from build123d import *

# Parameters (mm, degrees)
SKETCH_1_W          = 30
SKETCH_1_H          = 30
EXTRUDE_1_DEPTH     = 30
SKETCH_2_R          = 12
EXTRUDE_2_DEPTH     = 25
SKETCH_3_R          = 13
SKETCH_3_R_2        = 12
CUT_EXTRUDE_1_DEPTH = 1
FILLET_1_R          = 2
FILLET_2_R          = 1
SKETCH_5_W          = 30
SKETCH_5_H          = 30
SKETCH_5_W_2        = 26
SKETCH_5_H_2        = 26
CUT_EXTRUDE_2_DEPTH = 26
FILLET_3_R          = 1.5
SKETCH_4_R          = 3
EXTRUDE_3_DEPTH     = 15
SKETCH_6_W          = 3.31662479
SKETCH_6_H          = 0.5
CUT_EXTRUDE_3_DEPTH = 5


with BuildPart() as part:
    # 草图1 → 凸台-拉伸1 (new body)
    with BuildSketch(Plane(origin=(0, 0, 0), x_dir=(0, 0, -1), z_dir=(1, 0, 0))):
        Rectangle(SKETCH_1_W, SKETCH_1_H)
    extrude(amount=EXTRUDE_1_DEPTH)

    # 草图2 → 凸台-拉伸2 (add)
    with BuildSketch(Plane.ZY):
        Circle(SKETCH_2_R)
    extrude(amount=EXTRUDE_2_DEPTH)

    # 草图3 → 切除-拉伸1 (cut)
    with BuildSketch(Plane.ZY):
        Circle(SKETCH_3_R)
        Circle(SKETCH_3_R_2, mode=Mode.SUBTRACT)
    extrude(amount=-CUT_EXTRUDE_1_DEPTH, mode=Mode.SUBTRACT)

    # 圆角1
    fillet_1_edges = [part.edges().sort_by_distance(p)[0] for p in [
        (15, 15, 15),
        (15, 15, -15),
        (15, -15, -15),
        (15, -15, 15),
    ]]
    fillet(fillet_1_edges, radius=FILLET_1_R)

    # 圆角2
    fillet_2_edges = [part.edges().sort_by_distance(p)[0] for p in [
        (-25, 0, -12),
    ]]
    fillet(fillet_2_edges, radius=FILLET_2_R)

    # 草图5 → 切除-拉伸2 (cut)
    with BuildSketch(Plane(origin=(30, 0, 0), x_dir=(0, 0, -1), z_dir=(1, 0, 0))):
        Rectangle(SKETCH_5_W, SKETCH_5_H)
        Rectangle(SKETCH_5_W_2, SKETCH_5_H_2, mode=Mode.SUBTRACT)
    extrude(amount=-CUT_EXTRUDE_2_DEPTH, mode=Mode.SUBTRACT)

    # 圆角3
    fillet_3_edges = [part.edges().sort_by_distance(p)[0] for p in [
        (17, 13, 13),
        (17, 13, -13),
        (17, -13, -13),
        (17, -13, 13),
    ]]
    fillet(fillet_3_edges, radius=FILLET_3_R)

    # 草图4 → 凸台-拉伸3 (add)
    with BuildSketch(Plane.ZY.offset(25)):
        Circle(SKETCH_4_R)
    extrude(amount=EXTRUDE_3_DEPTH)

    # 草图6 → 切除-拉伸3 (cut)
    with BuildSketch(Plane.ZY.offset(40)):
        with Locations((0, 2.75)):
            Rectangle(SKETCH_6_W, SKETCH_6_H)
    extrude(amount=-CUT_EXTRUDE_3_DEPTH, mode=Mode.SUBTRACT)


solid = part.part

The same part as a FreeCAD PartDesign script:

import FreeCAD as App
import Part
import Sketcher
Q = App.Units.Quantity


def edges_at(feature, points):
    """Names of the edges that pass closest to the given points."""
    edges = feature.Shape.Edges
    near = lambda p: min(range(len(edges)), key=lambda i: edges[i].distToShape(Part.Vertex(*p))[0])
    return sorted({f"Edge{near(p) + 1}" for p in points})


def add_polygon(sketch, points):
    """Adds a closed chain of lines whose ends are joined by coincident constraints."""
    first, n = sketch.GeometryCount, len(points)
    for a, b in zip(points, points[1:] + points[:1]):
        sketch.addGeometry(Part.LineSegment(App.Vector(*a, 0), App.Vector(*b, 0)), False)
    for i in range(n):
        sketch.addConstraint(Sketcher.Constraint("Coincident", first + i, 2, first + (i + 1) % n, 1))

doc = App.newDocument("Part")
body = doc.addObject("PartDesign::Body", "Body")

# Sketch on YZ plane
sketch1 = doc.addObject("Sketcher::SketchObject", "Sketch")
body.addObject(sketch1)
sketch1.AttachmentSupport = (doc.YZ_Plane, [""])
sketch1.MapMode = "FlatFace"
add_polygon(sketch1, [(15, 15), (-15, 15), (-15, -15), (15, -15)])  # lines 0-3
sketch1.addConstraint([
    Sketcher.Constraint("Horizontal", 0),
    Sketcher.Constraint("Vertical", 1),
    Sketcher.Constraint("Horizontal", 2),
    Sketcher.Constraint("Vertical", 3),
    Sketcher.Constraint("Symmetric", 0, 2, 2, 2, -1, 1),
    Sketcher.Constraint("Equal", 2, 1),
    Sketcher.Constraint("DistanceX", 0, 2, 0, 1, Q("30 mm")),
])
pad1 = doc.addObject("PartDesign::Pad", "Pad")
body.addObject(pad1)
pad1.Profile = sketch1
pad1.Length = 30

# Sketch on YZ plane
sketch2 = doc.addObject("Sketcher::SketchObject", "Sketch001")
body.addObject(sketch2)
sketch2.AttachmentSupport = (doc.YZ_Plane, [""])
sketch2.MapMode = "FlatFace"
sketch2.addGeometry(Part.Circle(App.Vector(0, 0, 0), App.Vector(0, 0, 1), 12), False)
sketch2.addConstraint([
    Sketcher.Constraint("Coincident", 0, 3, -1, 1),
    Sketcher.Constraint("Diameter", 0, Q("24 mm")),
])
pad2 = doc.addObject("PartDesign::Pad", "Pad001")
body.addObject(pad2)
pad2.Profile = sketch2
pad2.Length = 25
pad2.Reversed = True

# Sketch on YZ plane
sketch3 = doc.addObject("Sketcher::SketchObject", "Sketch002")
body.addObject(sketch3)
sketch3.AttachmentSupport = (doc.YZ_Plane, [""])
sketch3.MapMode = "FlatFace"
sketch3.addGeometry([
    Part.Circle(App.Vector(0, 0, 0), App.Vector(0, 0, 1), 13),
    Part.Circle(App.Vector(0, 0, 0), App.Vector(0, 0, 1), 12),
], False)
sketch3.addConstraint([
    Sketcher.Constraint("Coincident", 0, 3, -1, 1),
    Sketcher.Constraint("Coincident", 1, 3, -1, 1),
    Sketcher.Constraint("Diameter", 0, Q("26 mm")),
    Sketcher.Constraint("Diameter", 1, Q("24 mm")),
])
pocket1 = doc.addObject("PartDesign::Pocket", "Pocket")
body.addObject(pocket1)
pocket1.Profile = sketch3
pocket1.Length = 1
pocket1.Reversed = True
doc.recompute()

fillet = doc.addObject("PartDesign::Fillet", "Fillet")
body.addObject(fillet)
fillet.Base = (pocket1, edges_at(pocket1, [
    (15, 15, 15),
    (15, 15, -15),
    (15, -15, -15),
    (15, -15, 15),
]))
fillet.Radius = 2
doc.recompute()

fillet2 = doc.addObject("PartDesign::Fillet", "Fillet001")
body.addObject(fillet2)
fillet2.Base = (fillet, edges_at(fillet, [(-25, 0, -12)]))
fillet2.Radius = 1

# Sketch on YZ plane
sketch4 = doc.addObject("Sketcher::SketchObject", "Sketch003")
body.addObject(sketch4)
sketch4.AttachmentSupport = (doc.YZ_Plane, [""])
sketch4.MapMode = "FlatFace"
sketch4.AttachmentOffset = App.Placement(App.Vector(0, 0, 30), App.Rotation())
add_polygon(sketch4, [(15, 15), (-15, 15), (-15, -15), (15, -15)])  # lines 0-3
add_polygon(sketch4, [(-13, -13), (-13, 13), (13, 13), (13, -13)])  # lines 4-7
sketch4.addConstraint([
    Sketcher.Constraint("Horizontal", 0),
    Sketcher.Constraint("Vertical", 1),
    Sketcher.Constraint("Horizontal", 2),
    Sketcher.Constraint("Vertical", 3),
    Sketcher.Constraint("Vertical", 4),
    Sketcher.Constraint("Horizontal", 5),
    Sketcher.Constraint("Vertical", 6),
    Sketcher.Constraint("Horizontal", 7),
    Sketcher.Constraint("Symmetric", 0, 2, 2, 2, -1, 1),
    Sketcher.Constraint("Symmetric", 4, 2, 6, 2, -1, 1),
    Sketcher.Constraint("Equal", 2, 1),
    Sketcher.Constraint("Equal", 7, 4),
    Sketcher.Constraint("DistanceX", 0, 2, 0, 1, Q("30 mm")),
    Sketcher.Constraint("DistanceX", 5, 1, 5, 2, Q("26 mm")),
])
pocket2 = doc.addObject("PartDesign::Pocket", "Pocket001")
body.addObject(pocket2)
pocket2.Profile = sketch4
pocket2.Length = 26
doc.recompute()

fillet3 = doc.addObject("PartDesign::Fillet", "Fillet002")
body.addObject(fillet3)
fillet3.Base = (pocket2, edges_at(pocket2, [
    (17, 13, 13),
    (17, 13, -13),
    (17, -13, -13),
    (17, -13, 13),
]))
fillet3.Radius = 1.5

# Sketch on YZ plane
sketch5 = doc.addObject("Sketcher::SketchObject", "Sketch004")
body.addObject(sketch5)
sketch5.AttachmentSupport = (doc.YZ_Plane, [""])
sketch5.MapMode = "FlatFace"
sketch5.AttachmentOffset = App.Placement(App.Vector(0, 0, -25), App.Rotation())
sketch5.addGeometry(Part.Circle(App.Vector(0, 0, 0), App.Vector(0, 0, 1), 3), False)
sketch5.addConstraint([
    Sketcher.Constraint("Coincident", 0, 3, -1, 1),
    Sketcher.Constraint("Diameter", 0, Q("6 mm")),
])
pad3 = doc.addObject("PartDesign::Pad", "Pad002")
body.addObject(pad3)
pad3.Profile = sketch5
pad3.Length = 15
pad3.Reversed = True

# Sketch on YZ plane
sketch6 = doc.addObject("Sketcher::SketchObject", "Sketch005")
body.addObject(sketch6)
sketch6.AttachmentSupport = (doc.YZ_Plane, [""])
sketch6.MapMode = "FlatFace"
sketch6.AttachmentOffset = App.Placement(App.Vector(0, 0, -40), App.Rotation())
add_polygon(sketch6, [(3, -1.7), (2.5, -1.7), (2.5, 1.7), (3, 1.7)])  # lines 0-3
sketch6.addConstraint([
    Sketcher.Constraint("Horizontal", 0),
    Sketcher.Constraint("Vertical", 1),
    Sketcher.Constraint("Horizontal", 2),
    Sketcher.Constraint("Vertical", 3),
    Sketcher.Constraint("DistanceX", 0, 2, 0, 1, Q("0.5 mm")),
    Sketcher.Constraint("DistanceX", -1, 1, 2, 2, Q("3 mm")),
    Sketcher.Constraint("DistanceY", 1, 1, 1, 2, Q("3.316625 mm")),
    Sketcher.Constraint("DistanceY", 0, 2, -1, 1, Q("1.658312 mm")),
])
pocket3 = doc.addObject("PartDesign::Pocket", "Pocket002")
body.addObject(pocket3)
pocket3.Profile = sketch6
pocket3.Length = 5
pocket3.Reversed = True

doc.recompute()
